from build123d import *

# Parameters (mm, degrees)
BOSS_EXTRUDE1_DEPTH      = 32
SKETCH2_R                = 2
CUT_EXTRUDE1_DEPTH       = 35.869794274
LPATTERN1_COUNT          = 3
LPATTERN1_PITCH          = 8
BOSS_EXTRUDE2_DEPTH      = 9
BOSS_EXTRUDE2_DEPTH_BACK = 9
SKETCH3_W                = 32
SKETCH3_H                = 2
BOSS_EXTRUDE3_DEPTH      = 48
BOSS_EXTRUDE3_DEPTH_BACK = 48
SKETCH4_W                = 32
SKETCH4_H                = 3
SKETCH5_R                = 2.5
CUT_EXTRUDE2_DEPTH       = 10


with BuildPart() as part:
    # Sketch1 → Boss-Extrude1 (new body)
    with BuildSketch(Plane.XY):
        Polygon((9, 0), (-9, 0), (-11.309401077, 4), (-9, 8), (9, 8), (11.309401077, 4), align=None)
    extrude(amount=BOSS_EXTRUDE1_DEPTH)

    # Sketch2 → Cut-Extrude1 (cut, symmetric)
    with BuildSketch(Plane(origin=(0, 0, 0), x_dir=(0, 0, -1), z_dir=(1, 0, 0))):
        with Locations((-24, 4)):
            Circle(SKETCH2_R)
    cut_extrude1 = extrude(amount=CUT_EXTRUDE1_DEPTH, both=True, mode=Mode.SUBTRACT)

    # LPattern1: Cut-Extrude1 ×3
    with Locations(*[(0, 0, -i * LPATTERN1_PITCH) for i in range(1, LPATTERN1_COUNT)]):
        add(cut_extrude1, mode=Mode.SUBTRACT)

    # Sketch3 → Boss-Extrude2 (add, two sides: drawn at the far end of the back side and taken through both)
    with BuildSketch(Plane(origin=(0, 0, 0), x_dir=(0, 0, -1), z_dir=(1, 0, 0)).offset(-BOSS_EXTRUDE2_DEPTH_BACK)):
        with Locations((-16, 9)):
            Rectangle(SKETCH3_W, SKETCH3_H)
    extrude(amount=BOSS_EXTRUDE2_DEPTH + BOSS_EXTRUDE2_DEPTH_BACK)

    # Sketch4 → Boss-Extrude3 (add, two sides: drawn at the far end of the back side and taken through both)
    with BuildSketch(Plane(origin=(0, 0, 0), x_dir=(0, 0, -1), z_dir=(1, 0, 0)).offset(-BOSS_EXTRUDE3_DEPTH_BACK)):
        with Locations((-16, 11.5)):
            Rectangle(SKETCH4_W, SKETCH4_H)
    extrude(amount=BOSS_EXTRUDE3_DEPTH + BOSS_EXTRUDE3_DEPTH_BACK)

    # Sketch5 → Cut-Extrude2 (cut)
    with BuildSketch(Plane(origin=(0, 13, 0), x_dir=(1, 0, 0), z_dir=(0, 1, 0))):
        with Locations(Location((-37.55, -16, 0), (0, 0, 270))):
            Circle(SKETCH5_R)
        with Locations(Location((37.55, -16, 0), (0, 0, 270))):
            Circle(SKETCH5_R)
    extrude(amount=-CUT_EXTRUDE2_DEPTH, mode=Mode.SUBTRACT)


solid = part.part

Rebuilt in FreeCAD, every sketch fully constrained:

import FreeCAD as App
import Part
import Sketcher

V = App.Vector
Q = App.Units.Quantity

doc = App.newDocument("Part")
params = doc.addObject("Spreadsheet::Sheet", "Params")
for row, (alias, value) in enumerate([
    ("sketch1_width", "18 mm"),
    ("pad1_length", "32 mm"),
    ("sketch2_diameter", "4 mm"),
    ("pocket1_length", "71.739589 mm"),
    ("linearpattern_pitch", "8 mm"),
    ("sketch3_width", "2 mm"),
    ("sketch3_height", "32 mm"),
    ("pad2_length", "9 mm"),
    ("pad2_length2", "9 mm"),
    ("sketch4_width", "3 mm"),
    ("sketch4_height", "32 mm"),
    ("pad3_length", "48 mm"),
    ("pad3_length2", "48 mm"),
    ("sketch5_diameter", "5 mm"),
    ("pocket2_length", "10 mm"),
], start=1):
    params.set(f"A{row}", alias)
    params.set(f"B{row}", "=" + value)
    params.setAlias(f"B{row}", alias)

body = doc.addObject("PartDesign::Body", "Body")

sketch1 = doc.addObject("Sketcher::SketchObject", "Sketch")
body.addObject(sketch1)
sketch1.AttachmentSupport = (doc.XY_Plane, [""])
sketch1.MapMode = "FlatFace"
sketch1.addGeometry([
    Part.LineSegment(V(-9, 0, 0), V(9, 0, 0)),
    Part.LineSegment(V(9, 0, 0), V(11.3, 4, 0)),
    Part.LineSegment(V(11.3, 4, 0), V(9, 8, 0)),
    Part.LineSegment(V(9, 8, 0), V(-9, 8, 0)),
    Part.LineSegment(V(-9, 8, 0), V(-11.3, 4, 0)),
    Part.LineSegment(V(-11.3, 4, 0), V(-9, 0, 0)),
], False)
sketch1.addConstraint([
    Sketcher.Constraint("Coincident", 0, 2, 1, 1),
    Sketcher.Constraint("Coincident", 1, 2, 2, 1),
    Sketcher.Constraint("Coincident", 2, 2, 3, 1),
    Sketcher.Constraint("Coincident", 3, 2, 4, 1),
    Sketcher.Constraint("Coincident", 4, 2, 5, 1),
    Sketcher.Constraint("Coincident", 5, 2, 0, 1),
    Sketcher.Constraint("Horizontal", 0),
    Sketcher.Constraint("Horizontal", 3),
    Sketcher.Constraint("Symmetric", 0, 2, 5, 2, -1, 1),
    Sketcher.Constraint("Symmetric", 1, 2, 4, 2, -2),
    Sketcher.Constraint("Parallel", 1, 4),
    Sketcher.Constraint("Parallel", 2, 5),
    Sketcher.Constraint("Vertical", 0, 2, 2, 2),
    Sketcher.Constraint("DistanceX", 0, 1, 0, 2, 18.0),
    Sketcher.Constraint("Angle", 1, Q("60 deg")),
    Sketcher.Constraint("DistanceY", -1, 1, 1, 2, 4.0),
])
sketch1.setExpression("Constraints[13]", "Params.sketch1_width")
pad1 = doc.addObject("PartDesign::Pad", "Pad")
body.addObject(pad1)
pad1.Profile = sketch1
pad1.setExpression("Length", "Params.pad1_length")

sketch2 = doc.addObject("Sketcher::SketchObject", "Sketch001")
body.addObject(sketch2)
sketch2.AttachmentSupport = (doc.YZ_Plane, [""])
sketch2.MapMode = "FlatFace"
sketch2.addGeometry(Part.Circle(V(4, 24, 0), V(0, 0, 1), 2), False)
sketch2.addConstraint([
    Sketcher.Constraint("Diameter", 0, 4.0),
    Sketcher.Constraint("DistanceX", -1, 1, 0, 3, 4.0),
    Sketcher.Constraint("DistanceY", -1, 1, 0, 3, 24.0),
])
sketch2.setExpression("Constraints[0]", "Params.sketch2_diameter")
pocket1 = doc.addObject("PartDesign::Pocket", "Pocket")
body.addObject(pocket1)
pocket1.Profile = sketch2
pocket1.setExpression("Length", "Params.pocket1_length")
pocket1.Midplane = True
doc.recompute()

linearpattern = doc.addObject("PartDesign::LinearPattern", "LinearPattern")
body.addObject(linearpattern)
linearpattern.Originals = [pocket1]
linearpattern.Direction = (doc.Z_Axis, [""])
linearpattern.Mode = "offset"
linearpattern.setExpression("Offset", "Params.linearpattern_pitch")
linearpattern.Occurrences = 3
linearpattern.Reversed = True
body.Tip = linearpattern

sketch3 = doc.addObject("Sketcher::SketchObject", "Sketch002")
body.addObject(sketch3)
sketch3.AttachmentSupport = (doc.YZ_Plane, [""])
sketch3.MapMode = "FlatFace"
sketch3.addGeometry([
    Part.LineSegment(V(10, 32, 0), V(8, 32, 0)),
    Part.LineSegment(V(8, 32, 0), V(8, 0, 0)),
    Part.LineSegment(V(8, 0, 0), V(10, 0, 0)),
    Part.LineSegment(V(10, 0, 0), V(10, 32, 0)),
], False)
sketch3.addConstraint([
    Sketcher.Constraint("Coincident", 0, 2, 1, 1),
    Sketcher.Constraint("Coincident", 1, 2, 2, 1),
    Sketcher.Constraint("Coincident", 2, 2, 3, 1),
    Sketcher.Constraint("Coincident", 3, 2, 0, 1),
    Sketcher.Constraint("Horizontal", 0),
    Sketcher.Constraint("Vertical", 1),
    Sketcher.Constraint("Horizontal", 2),
    Sketcher.Constraint("Vertical", 3),
    Sketcher.Constraint("PointOnObject", 1, 2, -1),
    Sketcher.Constraint("DistanceX", 0, 2, 0, 1, 2.0),
    Sketcher.Constraint("DistanceY", 1, 2, 1, 1, 32.0),
    Sketcher.Constraint("DistanceX", -1, 1, 0, 2, 8.0),
])
sketch3.setExpression("Constraints[9]", "Params.sketch3_width")
sketch3.setExpression("Constraints[10]", "Params.sketch3_height")
pad2 = doc.addObject("PartDesign::Pad", "Pad001")
body.addObject(pad2)
pad2.Profile = sketch3
pad2.Type = "TwoLengths"
pad2.setExpression("Length", "Params.pad2_length")
pad2.setExpression("Length2", "Params.pad2_length2")

sketch4 = doc.addObject("Sketcher::SketchObject", "Sketch003")
body.addObject(sketch4)
sketch4.AttachmentSupport = (doc.YZ_Plane, [""])
sketch4.MapMode = "FlatFace"
sketch4.addGeometry([
    Part.LineSegment(V(13, 32, 0), V(10, 32, 0)),
    Part.LineSegment(V(10, 32, 0), V(10, 0, 0)),
    Part.LineSegment(V(10, 0, 0), V(13, 0, 0)),
    Part.LineSegment(V(13, 0, 0), V(13, 32, 0)),
], False)
sketch4.addConstraint([
    Sketcher.Constraint("Coincident", 0, 2, 1, 1),
    Sketcher.Constraint("Coincident", 1, 2, 2, 1),
    Sketcher.Constraint("Coincident", 2, 2, 3, 1),
    Sketcher.Constraint("Coincident", 3, 2, 0, 1),
    Sketcher.Constraint("Horizontal", 0),
    Sketcher.Constraint("Vertical", 1),
    Sketcher.Constraint("Horizontal", 2),
    Sketcher.Constraint("Vertical", 3),
    Sketcher.Constraint("PointOnObject", 1, 2, -1),
    Sketcher.Constraint("DistanceX", 0, 2, 0, 1, 3.0),
    Sketcher.Constraint("DistanceY", 1, 2, 1, 1, 32.0),
    Sketcher.Constraint("DistanceX", -1, 1, 0, 2, 10.0),
])
sketch4.setExpression("Constraints[9]", "Params.sketch4_width")
sketch4.setExpression("Constraints[10]", "Params.sketch4_height")
pad3 = doc.addObject("PartDesign::Pad", "Pad002")
body.addObject(pad3)
pad3.Profile = sketch4
pad3.Type = "TwoLengths"
pad3.setExpression("Length", "Params.pad3_length")
pad3.setExpression("Length2", "Params.pad3_length2")

sketch5 = doc.addObject("Sketcher::SketchObject", "Sketch004")
body.addObject(sketch5)
sketch5.AttachmentSupport = (doc.XZ_Plane, [""])
sketch5.MapMode = "FlatFace"
sketch5.AttachmentOffset = App.Placement(V(0, 0, -13), App.Rotation())
sketch5.addGeometry([
    Part.Circle(V(-37.5, 16, 0), V(0, 0, 1), 2.5),
    Part.Circle(V(37.5, 16, 0), V(0, 0, 1), 2.5),
], False)
sketch5.addConstraint([
    Sketcher.Constraint("Equal", 0, 1),
    Sketcher.Constraint("Symmetric", 0, 3, 1, 3, -2),
    Sketcher.Constraint("Diameter", 0, 5.0),
    Sketcher.Constraint("DistanceY", -1, 1, 0, 3, 16.0),
    Sketcher.Constraint("DistanceX", 0, 3, 1, 3, 75.1),
])
sketch5.setExpression("Constraints[2]", "Params.sketch5_diameter")
pocket2 = doc.addObject("PartDesign::Pocket", "Pocket001")
body.addObject(pocket2)
pocket2.Profile = sketch5
pocket2.setExpression("Length", "Params.pocket2_length")
pocket2.Reversed = True

doc.recompute()
